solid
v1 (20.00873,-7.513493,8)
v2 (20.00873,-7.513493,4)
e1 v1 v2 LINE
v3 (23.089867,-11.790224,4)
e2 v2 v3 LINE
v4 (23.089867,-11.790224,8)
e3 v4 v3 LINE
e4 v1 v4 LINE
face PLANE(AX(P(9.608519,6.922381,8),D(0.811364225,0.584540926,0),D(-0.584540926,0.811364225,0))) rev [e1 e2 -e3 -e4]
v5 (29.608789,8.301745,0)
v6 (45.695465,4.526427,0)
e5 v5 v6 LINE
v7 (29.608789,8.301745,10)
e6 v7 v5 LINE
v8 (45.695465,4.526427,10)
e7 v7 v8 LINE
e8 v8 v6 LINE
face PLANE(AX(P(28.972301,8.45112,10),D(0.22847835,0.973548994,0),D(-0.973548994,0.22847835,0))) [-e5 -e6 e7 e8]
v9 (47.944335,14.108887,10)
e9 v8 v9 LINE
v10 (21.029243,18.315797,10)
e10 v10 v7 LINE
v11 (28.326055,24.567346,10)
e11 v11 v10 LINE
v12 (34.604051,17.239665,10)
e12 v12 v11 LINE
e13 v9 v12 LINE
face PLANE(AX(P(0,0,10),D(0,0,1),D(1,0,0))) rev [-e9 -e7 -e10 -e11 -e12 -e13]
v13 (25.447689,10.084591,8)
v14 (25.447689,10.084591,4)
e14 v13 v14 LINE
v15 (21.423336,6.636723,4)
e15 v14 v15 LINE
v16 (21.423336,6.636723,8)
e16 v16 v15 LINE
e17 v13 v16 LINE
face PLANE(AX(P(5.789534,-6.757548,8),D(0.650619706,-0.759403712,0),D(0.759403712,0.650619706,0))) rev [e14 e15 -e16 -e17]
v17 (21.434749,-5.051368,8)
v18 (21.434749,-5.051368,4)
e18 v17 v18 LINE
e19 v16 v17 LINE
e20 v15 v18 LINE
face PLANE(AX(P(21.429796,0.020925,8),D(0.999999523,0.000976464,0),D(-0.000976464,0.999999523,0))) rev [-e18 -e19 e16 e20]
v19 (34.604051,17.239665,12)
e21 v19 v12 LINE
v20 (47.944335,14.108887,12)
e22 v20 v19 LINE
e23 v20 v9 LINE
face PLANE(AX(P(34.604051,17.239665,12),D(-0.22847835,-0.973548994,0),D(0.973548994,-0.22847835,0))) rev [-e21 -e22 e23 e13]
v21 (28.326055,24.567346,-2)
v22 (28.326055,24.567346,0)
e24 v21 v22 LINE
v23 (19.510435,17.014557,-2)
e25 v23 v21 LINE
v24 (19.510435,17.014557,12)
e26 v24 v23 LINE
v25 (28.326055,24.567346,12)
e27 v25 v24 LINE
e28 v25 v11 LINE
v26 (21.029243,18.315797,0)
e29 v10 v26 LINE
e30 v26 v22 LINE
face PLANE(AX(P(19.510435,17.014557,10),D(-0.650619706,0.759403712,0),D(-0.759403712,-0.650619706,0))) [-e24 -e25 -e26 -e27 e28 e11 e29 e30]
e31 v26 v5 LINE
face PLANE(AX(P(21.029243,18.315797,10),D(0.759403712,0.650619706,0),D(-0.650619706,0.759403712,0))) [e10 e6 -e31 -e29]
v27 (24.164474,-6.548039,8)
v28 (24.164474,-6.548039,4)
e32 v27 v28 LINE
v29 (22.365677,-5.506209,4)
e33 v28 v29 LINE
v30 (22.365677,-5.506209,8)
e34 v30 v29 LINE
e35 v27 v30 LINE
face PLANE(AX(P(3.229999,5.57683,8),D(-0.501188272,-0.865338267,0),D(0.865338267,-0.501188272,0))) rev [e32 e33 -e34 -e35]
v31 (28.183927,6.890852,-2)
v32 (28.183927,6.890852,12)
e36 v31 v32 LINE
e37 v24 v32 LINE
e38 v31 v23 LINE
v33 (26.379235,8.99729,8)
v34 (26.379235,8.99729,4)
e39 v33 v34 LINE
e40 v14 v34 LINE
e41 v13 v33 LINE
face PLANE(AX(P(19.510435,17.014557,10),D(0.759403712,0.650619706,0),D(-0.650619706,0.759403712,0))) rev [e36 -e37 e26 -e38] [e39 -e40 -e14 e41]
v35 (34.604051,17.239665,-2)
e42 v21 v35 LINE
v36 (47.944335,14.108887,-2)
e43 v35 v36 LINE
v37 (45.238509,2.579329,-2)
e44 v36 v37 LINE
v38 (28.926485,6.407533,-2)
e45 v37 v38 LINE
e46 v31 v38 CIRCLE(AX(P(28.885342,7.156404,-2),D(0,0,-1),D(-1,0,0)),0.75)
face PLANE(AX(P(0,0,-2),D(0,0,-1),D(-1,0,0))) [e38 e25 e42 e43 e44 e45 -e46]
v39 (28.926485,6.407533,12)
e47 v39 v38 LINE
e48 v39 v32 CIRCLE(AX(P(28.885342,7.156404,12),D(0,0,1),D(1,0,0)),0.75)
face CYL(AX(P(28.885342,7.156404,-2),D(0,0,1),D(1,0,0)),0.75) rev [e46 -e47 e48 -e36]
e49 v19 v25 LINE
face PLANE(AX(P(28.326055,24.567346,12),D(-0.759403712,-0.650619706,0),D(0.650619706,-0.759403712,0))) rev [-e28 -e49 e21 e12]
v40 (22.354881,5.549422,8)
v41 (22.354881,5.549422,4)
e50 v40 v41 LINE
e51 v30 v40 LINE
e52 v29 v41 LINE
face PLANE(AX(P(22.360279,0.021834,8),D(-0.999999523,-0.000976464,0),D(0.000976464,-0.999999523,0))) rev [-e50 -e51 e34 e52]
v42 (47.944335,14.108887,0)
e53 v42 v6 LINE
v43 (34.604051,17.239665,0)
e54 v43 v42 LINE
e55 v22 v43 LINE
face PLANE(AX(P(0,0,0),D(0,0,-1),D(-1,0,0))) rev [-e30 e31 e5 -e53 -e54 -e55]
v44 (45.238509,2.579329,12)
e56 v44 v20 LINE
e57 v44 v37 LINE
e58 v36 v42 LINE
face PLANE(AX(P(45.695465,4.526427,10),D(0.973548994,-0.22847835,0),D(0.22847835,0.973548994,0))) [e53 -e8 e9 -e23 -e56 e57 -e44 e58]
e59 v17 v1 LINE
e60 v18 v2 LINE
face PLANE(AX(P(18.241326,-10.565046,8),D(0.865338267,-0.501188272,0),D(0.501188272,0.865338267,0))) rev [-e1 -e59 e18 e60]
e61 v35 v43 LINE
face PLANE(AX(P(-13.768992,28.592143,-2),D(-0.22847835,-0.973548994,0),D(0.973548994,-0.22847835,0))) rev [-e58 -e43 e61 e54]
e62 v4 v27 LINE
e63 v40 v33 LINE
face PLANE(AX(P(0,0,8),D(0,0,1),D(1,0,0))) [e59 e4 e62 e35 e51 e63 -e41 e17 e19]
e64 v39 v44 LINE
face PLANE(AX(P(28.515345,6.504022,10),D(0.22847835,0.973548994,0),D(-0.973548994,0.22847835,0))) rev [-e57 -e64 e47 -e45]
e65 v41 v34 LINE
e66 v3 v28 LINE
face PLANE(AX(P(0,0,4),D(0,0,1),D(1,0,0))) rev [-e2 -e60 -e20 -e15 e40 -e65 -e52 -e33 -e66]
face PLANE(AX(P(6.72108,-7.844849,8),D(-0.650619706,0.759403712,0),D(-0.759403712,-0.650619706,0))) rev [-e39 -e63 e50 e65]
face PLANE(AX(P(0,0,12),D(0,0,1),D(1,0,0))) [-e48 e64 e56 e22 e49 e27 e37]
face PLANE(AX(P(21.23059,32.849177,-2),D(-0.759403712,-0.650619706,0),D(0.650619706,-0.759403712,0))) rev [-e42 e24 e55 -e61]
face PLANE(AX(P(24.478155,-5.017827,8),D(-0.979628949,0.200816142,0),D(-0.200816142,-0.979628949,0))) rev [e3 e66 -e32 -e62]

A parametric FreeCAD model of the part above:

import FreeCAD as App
import Part
import Sketcher

V = App.Vector
Q = App.Units.Quantity


def add_polygon(sketch, points):
    """Adds a closed chain of lines whose ends are joined by coincident constraints."""
    first, n = sketch.GeometryCount, len(points)
    for a, b in zip(points, points[1:] + points[:1]):
        sketch.addGeometry(Part.LineSegment(App.Vector(*a, 0), App.Vector(*b, 0)), False)
    for i in range(n):
        sketch.addConstraint(Sketcher.Constraint("Coincident", first + i, 2, first + (i + 1) % n, 1))

doc = App.newDocument("Part")
body = doc.addObject("PartDesign::Body", "Body")

sketch1 = doc.addObject("Sketcher::SketchObject", "Sketch")
body.addObject(sketch1)
sketch1.AttachmentSupport = (doc.XY_Plane, [""])
sketch1.MapMode = "FlatFace"
add_polygon(sketch1, [(19.5, 17), (28.5, 6.5), (45.2, 2.6), (45.7, 4.5), (29.6, 8.3), (21, 18.3)])
sketch1.addConstraint([
    Sketcher.Constraint("Perpendicular", 1, 2),
    Sketcher.Constraint("Perpendicular", 2, 3),
    Sketcher.Constraint("Parallel", 0, 4),
    Sketcher.Constraint("Perpendicular", 4, 5),
    Sketcher.Constraint("Equal", 2, 5),
    Sketcher.Constraint("Distance", 2, Q("2 mm")),
    Sketcher.Constraint("DistanceX", 4, 2, 0, 2, Q("7.486102 mm")),
    Sketcher.Constraint("Distance", 0, Q("13.840511 mm")),
    Sketcher.Constraint("Distance", 4, Q("13.18673 mm")),
    Sketcher.Constraint("DistanceX", -1, 1, 1, 2, Q("45.238509 mm")),
    Sketcher.Constraint("DistanceY", -1, 1, 1, 2, Q("2.579329 mm")),
    Sketcher.Constraint("DistanceX", -1, 1, 3, 2, Q("29.608789 mm")),
])
pad1 = doc.addObject("PartDesign::Pad", "Pad")
body.addObject(pad1)
pad1.Profile = sketch1
pad1.Length = 10

sketch2 = doc.addObject("Sketcher::SketchObject", "Sketch001")
body.addObject(sketch2)
sketch2.AttachmentSupport = (doc.XY_Plane, [""])
sketch2.MapMode = "FlatFace"
sketch2.AttachmentOffset = App.Placement(V(0, 0, 10), App.Rotation())
add_polygon(sketch2, [(28, 25), (20, 17), (29, 7), (45, 3), (48, 14), (35, 17)])
sketch2.addConstraint([
    Sketcher.Constraint("Perpendicular", 0, 1),
    Sketcher.Constraint("Perpendicular", 2, 3),
    Sketcher.Constraint("Perpendicular", 3, 4),
    Sketcher.Constraint("Parallel", 1, 5),
    Sketcher.Constraint("DistanceX", 0, 2, 3, 2, Q("28.433899 mm")),
    Sketcher.Constraint("Distance", 1, Q("13.840511 mm")),
    Sketcher.Constraint("DistanceX", -1, 1, 2, 2, Q("45.238509 mm")),
    Sketcher.Constraint("DistanceY", -1, 1, 2, 2, Q("2.579329 mm")),
    Sketcher.Constraint("DistanceX", -1, 1, 4, 2, Q("34.604051 mm")),
    Sketcher.Constraint("DistanceX", 0, 2, 1, 2, Q("9.004909 mm")),
    Sketcher.Constraint("DistanceY", 2, 2, 0, 2, Q("14.435228 mm")),
    Sketcher.Constraint("DistanceY", 2, 2, 3, 2, Q("11.529558 mm")),
])
pad2 = doc.addObject("PartDesign::Pad", "Pad001")
body.addObject(pad2)
pad2.Profile = sketch2
pad2.Length = 2

sketch3 = doc.addObject("Sketcher::SketchObject", "Sketch002")
body.addObject(sketch3)
sketch3.AttachmentSupport = (doc.XY_Plane, [""])
sketch3.MapMode = "FlatFace"
add_polygon(sketch3, [(21, 18.3), (19.5, 17), (28.5, 6.5), (45.2, 2.6), (45.7, 4.5), (47.9, 14.1), (34.6, 17.2), (28.3, 24.6)])
sketch3.addConstraint([
    Sketcher.Constraint("Perpendicular", 0, 1),
    Sketcher.Constraint("Perpendicular", 2, 3),
    Sketcher.Constraint("Parallel", 3, 4),
    Sketcher.Constraint("Perpendicular", 4, 5),
    Sketcher.Constraint("Parallel", 1, 6),
    Sketcher.Constraint("Perpendicular", 6, 7),
    Sketcher.Constraint("Equal", 0, 3),
    Sketcher.Constraint("Distance", 0, Q("2 mm")),
    Sketcher.Constraint("DistanceX", 0, 2, 4, 2, Q("28.433899 mm")),
    Sketcher.Constraint("DistanceX", 7, 2, 1, 2, Q("7.486102 mm")),
    Sketcher.Constraint("Distance", 1, Q("13.840511 mm")),
    Sketcher.Constraint("DistanceX", -1, 1, 2, 2, Q("45.238509 mm")),
    Sketcher.Constraint("DistanceY", -1, 1, 2, 2, Q("2.579329 mm")),
    Sketcher.Constraint("DistanceX", -1, 1, 5, 2, Q("34.604051 mm")),
    Sketcher.Constraint("DistanceY", 2, 2, 0, 2, Q("14.435228 mm")),
    Sketcher.Constraint("DistanceX", 1, 2, 3, 2, Q("17.180121 mm")),
])
pad3 = doc.addObject("PartDesign::Pad", "Pad002")
body.addObject(pad3)
pad3.Profile = sketch3
pad3.Length = 2
pad3.Reversed = True

sketch4 = doc.addObject("Sketcher::SketchObject", "Sketch003")
body.addObject(sketch4)
sketch4.AttachmentSupport = (doc.XY_Plane, [""])
sketch4.MapMode = "FlatFace"
sketch4.AttachmentOffset = App.Placement(V(0, 0, 12), App.Rotation())
sketch4.addGeometry(Part.Circle(V(28.9, 7.2, 0), V(0, 0, 1), 0.8), False)
sketch4.addConstraint([
    Sketcher.Constraint("Diameter", 0, Q("1.5 mm")),
    Sketcher.Constraint("DistanceX", -1, 1, 0, 3, Q("28.885342 mm")),
    Sketcher.Constraint("DistanceY", -1, 1, 0, 3, Q("7.156404 mm")),
])
pocket1 = doc.addObject("PartDesign::Pocket", "Pocket")
body.addObject(pocket1)
pocket1.Profile = sketch4
pocket1.Type = "ThroughAll"

sketch5 = doc.addObject("Sketcher::SketchObject", "Sketch004")
body.addObject(sketch5)
sketch5.AttachmentSupport = (doc.XY_Plane, [""])
sketch5.MapMode = "FlatFace"
sketch5.AttachmentOffset = App.Placement(V(0, 0, 4), App.Rotation())
add_polygon(sketch5, [(26.4, 9), (25.4, 10.1), (21.4, 6.6), (21.4, -5.1), (20, -7.5), (23.1, -11.8), (24.2, -6.5), (22.4, -5.5), (22.4, 5.5)])
sketch5.addConstraint([
    Sketcher.Constraint("Perpendicular", 0, 1),
    Sketcher.Constraint("Perpendicular", 3, 6),
    Sketcher.Constraint("Parallel", 2, 7),
    Sketcher.Constraint("Parallel", 1, 8),
    Sketcher.Constraint("Equal", 1, 8),
    Sketcher.Constraint("DistanceY", 7, 2, 1, 2, Q("1.087301 mm")),
    Sketcher.Constraint("DistanceX", 1, 2, 8, 2, Q("4.9559 mm")),
    Sketcher.Constraint("DistanceY", 6, 2, 8, 2, Q("14.503499 mm")),
    Sketcher.Constraint("Distance", 1, Q("5.29936 mm")),
    Sketcher.Constraint("Distance", 6, Q("2.078721 mm")),
    Sketcher.Constraint("DistanceX", -1, 1, 0, 2, Q("25.447689 mm")),
    Sketcher.Constraint("DistanceY", -1, 1, 0, 2, Q("10.084591 mm")),
    Sketcher.Constraint("DistanceX", -1, 1, 2, 2, Q("21.434749 mm")),
    Sketcher.Constraint("DistanceY", 2, 2, -1, 1, Q("5.051368 mm")),
    Sketcher.Constraint("DistanceX", -1, 1, 3, 2, Q("20.00873 mm")),
    Sketcher.Constraint("DistanceY", 5, 2, -1, 1, Q("6.548039 mm")),
    Sketcher.Constraint("DistanceY", 4, 2, 3, 2, Q("4.276731 mm")),
    Sketcher.Constraint("DistanceX", 2, 2, 4, 2, Q("1.655119 mm")),
])
pad4 = doc.addObject("PartDesign::Pad", "Pad003")
body.addObject(pad4)
pad4.Profile = sketch5
pad4.Length = 4

doc.recompute()
